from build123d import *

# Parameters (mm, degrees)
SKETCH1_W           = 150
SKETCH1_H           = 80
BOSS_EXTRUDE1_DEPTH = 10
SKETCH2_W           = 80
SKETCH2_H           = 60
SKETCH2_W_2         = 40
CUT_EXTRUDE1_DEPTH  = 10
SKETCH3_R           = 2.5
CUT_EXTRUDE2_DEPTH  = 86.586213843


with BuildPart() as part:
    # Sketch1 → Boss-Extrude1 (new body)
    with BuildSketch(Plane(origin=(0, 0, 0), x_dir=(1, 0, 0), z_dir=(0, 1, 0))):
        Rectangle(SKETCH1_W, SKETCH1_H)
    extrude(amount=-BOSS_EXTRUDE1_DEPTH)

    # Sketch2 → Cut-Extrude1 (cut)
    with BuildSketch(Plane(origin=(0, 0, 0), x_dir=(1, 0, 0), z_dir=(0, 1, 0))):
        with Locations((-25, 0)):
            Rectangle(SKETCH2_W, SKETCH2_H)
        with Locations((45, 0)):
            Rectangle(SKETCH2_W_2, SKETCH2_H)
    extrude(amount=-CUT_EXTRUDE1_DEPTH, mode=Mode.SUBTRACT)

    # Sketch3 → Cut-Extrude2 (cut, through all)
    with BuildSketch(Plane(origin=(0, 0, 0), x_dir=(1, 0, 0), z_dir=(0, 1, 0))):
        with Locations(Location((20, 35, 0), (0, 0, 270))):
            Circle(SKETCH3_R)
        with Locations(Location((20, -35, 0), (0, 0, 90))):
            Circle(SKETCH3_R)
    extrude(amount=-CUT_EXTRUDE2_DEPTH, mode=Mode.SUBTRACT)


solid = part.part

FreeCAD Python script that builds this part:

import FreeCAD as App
import Part
import Sketcher

V = App.Vector

doc = App.newDocument("Part")
params = doc.addObject("Spreadsheet::Sheet", "Params")
for row, (alias, value) in enumerate([
    ("sketch1_width", "150 mm"),
    ("sketch1_height", "80 mm"),
    ("pad1_length", "10 mm"),
    ("sketch2_width", "80 mm"),
    ("sketch2_width2", "40 mm"),
    ("sketch2_height", "60 mm"),
    ("pocket1_length", "10 mm"),
    ("sketch3_diameter", "5 mm"),
], start=1):
    params.set(f"A{row}", alias)
    params.set(f"B{row}", "=" + value)
    params.setAlias(f"B{row}", alias)

body = doc.addObject("PartDesign::Body", "Body")

sketch1 = body.newObject("Sketcher::SketchObject", "Sketch")
sketch1.AttachmentSupport = (doc.getObject("XZ_Plane"), [""])
sketch1.MapMode = "FlatFace"
sketch1.addGeometry(Part.LineSegment(V(-75, -40, 0), V(-75, 40, 0)), False)
sketch1.addGeometry(Part.LineSegment(V(-75, 40, 0), V(75, 40, 0)), False)
sketch1.addGeometry(Part.LineSegment(V(75, 40, 0), V(75, -40, 0)), False)
sketch1.addGeometry(Part.LineSegment(V(75, -40, 0), V(-75, -40, 0)), False)
sketch1.addConstraint(Sketcher.Constraint("Coincident", 0, 2, 1, 1))
sketch1.addConstraint(Sketcher.Constraint("Coincident", 1, 2, 2, 1))
sketch1.addConstraint(Sketcher.Constraint("Coincident", 2, 2, 3, 1))
sketch1.addConstraint(Sketcher.Constraint("Coincident", 3, 2, 0, 1))
sketch1.addConstraint(Sketcher.Constraint("Vertical", 0))
sketch1.addConstraint(Sketcher.Constraint("Horizontal", 1))
sketch1.addConstraint(Sketcher.Constraint("Vertical", 2))
sketch1.addConstraint(Sketcher.Constraint("Horizontal", 3))
sketch1.addConstraint(Sketcher.Constraint("Symmetric", 0, 2, 2, 2, -1, 1))
sketch1.addConstraint(Sketcher.Constraint("DistanceX", 1, 1, 1, 2, 150.0))
sketch1.addConstraint(Sketcher.Constraint("DistanceY", 0, 1, 0, 2, 80.0))
sketch1.setExpression("Constraints[9]", "Params.sketch1_width")
sketch1.setExpression("Constraints[10]", "Params.sketch1_height")
pad1 = body.newObject("PartDesign::Pad", "Pad")
pad1.Profile = sketch1
pad1.setExpression("Length", "Params.pad1_length")

sketch2 = body.newObject("Sketcher::SketchObject", "Sketch001")
sketch2.AttachmentSupport = (doc.getObject("XZ_Plane"), [""])
sketch2.MapMode = "FlatFace"
sketch2.addGeometry(Part.LineSegment(V(-65, -30, 0), V(-65, 30, 0)), False)
sketch2.addGeometry(Part.LineSegment(V(-65, 30, 0), V(15, 30, 0)), False)
sketch2.addGeometry(Part.LineSegment(V(15, 30, 0), V(15, -30, 0)), False)
sketch2.addGeometry(Part.LineSegment(V(15, -30, 0), V(-65, -30, 0)), False)
sketch2.addGeometry(Part.LineSegment(V(25, -30, 0), V(25, 30, 0)), False)
sketch2.addGeometry(Part.LineSegment(V(25, 30, 0), V(65, 30, 0)), False)
sketch2.addGeometry(Part.LineSegment(V(65, 30, 0), V(65, -30, 0)), False)
sketch2.addGeometry(Part.LineSegment(V(65, -30, 0), V(25, -30, 0)), False)
sketch2.addConstraint(Sketcher.Constraint("Coincident", 0, 2, 1, 1))
sketch2.addConstraint(Sketcher.Constraint("Coincident", 1, 2, 2, 1))
sketch2.addConstraint(Sketcher.Constraint("Coincident", 2, 2, 3, 1))
sketch2.addConstraint(Sketcher.Constraint("Coincident", 3, 2, 0, 1))
sketch2.addConstraint(Sketcher.Constraint("Coincident", 4, 2, 5, 1))
sketch2.addConstraint(Sketcher.Constraint("Coincident", 5, 2, 6, 1))
sketch2.addConstraint(Sketcher.Constraint("Coincident", 6, 2, 7, 1))
sketch2.addConstraint(Sketcher.Constraint("Coincident", 7, 2, 4, 1))
sketch2.addConstraint(Sketcher.Constraint("Vertical", 0))
sketch2.addConstraint(Sketcher.Constraint("Horizontal", 1))
sketch2.addConstraint(Sketcher.Constraint("Vertical", 2))
sketch2.addConstraint(Sketcher.Constraint("Horizontal", 3))
sketch2.addConstraint(Sketcher.Constraint("Vertical", 4))
sketch2.addConstraint(Sketcher.Constraint("Horizontal", 5))
sketch2.addConstraint(Sketcher.Constraint("Vertical", 6))
sketch2.addConstraint(Sketcher.Constraint("Horizontal", 7))
sketch2.addConstraint(Sketcher.Constraint("Symmetric", 3, 2, 5, 2, -1, 1))
sketch2.addConstraint(Sketcher.Constraint("Horizontal", 1, 2, 4, 2))
sketch2.addConstraint(Sketcher.Constraint("Horizontal", 3, 2, 6, 2))
sketch2.addConstraint(Sketcher.Constraint("DistanceX", 1, 1, 1, 2, 80.0))
sketch2.addConstraint(Sketcher.Constraint("DistanceX", 5, 1, 5, 2, 40.0))
sketch2.addConstraint(Sketcher.Constraint("DistanceY", 0, 1, 0, 2, 60.0))
sketch2.addConstraint(Sketcher.Constraint("DistanceX", 0, 2, -1, 1, 65.0))
sketch2.setExpression("Constraints[19]", "Params.sketch2_width")
sketch2.setExpression("Constraints[20]", "Params.sketch2_width2")
sketch2.setExpression("Constraints[21]", "Params.sketch2_height")
pocket1 = body.newObject("PartDesign::Pocket", "Pocket")
pocket1.Profile = sketch2
pocket1.setExpression("Length", "Params.pocket1_length")
pocket1.Reversed = True

sketch3 = body.newObject("Sketcher::SketchObject", "Sketch002")
sketch3.AttachmentSupport = (doc.getObject("XZ_Plane"), [""])
sketch3.MapMode = "FlatFace"
sketch3.addGeometry(Part.Circle(V(20, -35, 0), V(0, 0, 1), 2.5), False)
sketch3.addGeometry(Part.Circle(V(20, 35, 0), V(0, 0, 1), 2.5), False)
sketch3.addConstraint(Sketcher.Constraint("Equal", 0, 1))
sketch3.addConstraint(Sketcher.Constraint("Symmetric", 0, 3, 1, 3, -1))
sketch3.addConstraint(Sketcher.Constraint("Diameter", 0, 5.0))
sketch3.addConstraint(Sketcher.Constraint("DistanceX", -1, 1, 0, 3, 20.0))
sketch3.addConstraint(Sketcher.Constraint("DistanceY", 0, 3, -1, 1, 35.0))
sketch3.setExpression("Constraints[2]", "Params.sketch3_diameter")
pocket2 = body.newObject("PartDesign::Pocket", "Pocket001")
pocket2.Profile = sketch3
pocket2.Type = "ThroughAll"
pocket2.Reversed = True

doc.recompute()
